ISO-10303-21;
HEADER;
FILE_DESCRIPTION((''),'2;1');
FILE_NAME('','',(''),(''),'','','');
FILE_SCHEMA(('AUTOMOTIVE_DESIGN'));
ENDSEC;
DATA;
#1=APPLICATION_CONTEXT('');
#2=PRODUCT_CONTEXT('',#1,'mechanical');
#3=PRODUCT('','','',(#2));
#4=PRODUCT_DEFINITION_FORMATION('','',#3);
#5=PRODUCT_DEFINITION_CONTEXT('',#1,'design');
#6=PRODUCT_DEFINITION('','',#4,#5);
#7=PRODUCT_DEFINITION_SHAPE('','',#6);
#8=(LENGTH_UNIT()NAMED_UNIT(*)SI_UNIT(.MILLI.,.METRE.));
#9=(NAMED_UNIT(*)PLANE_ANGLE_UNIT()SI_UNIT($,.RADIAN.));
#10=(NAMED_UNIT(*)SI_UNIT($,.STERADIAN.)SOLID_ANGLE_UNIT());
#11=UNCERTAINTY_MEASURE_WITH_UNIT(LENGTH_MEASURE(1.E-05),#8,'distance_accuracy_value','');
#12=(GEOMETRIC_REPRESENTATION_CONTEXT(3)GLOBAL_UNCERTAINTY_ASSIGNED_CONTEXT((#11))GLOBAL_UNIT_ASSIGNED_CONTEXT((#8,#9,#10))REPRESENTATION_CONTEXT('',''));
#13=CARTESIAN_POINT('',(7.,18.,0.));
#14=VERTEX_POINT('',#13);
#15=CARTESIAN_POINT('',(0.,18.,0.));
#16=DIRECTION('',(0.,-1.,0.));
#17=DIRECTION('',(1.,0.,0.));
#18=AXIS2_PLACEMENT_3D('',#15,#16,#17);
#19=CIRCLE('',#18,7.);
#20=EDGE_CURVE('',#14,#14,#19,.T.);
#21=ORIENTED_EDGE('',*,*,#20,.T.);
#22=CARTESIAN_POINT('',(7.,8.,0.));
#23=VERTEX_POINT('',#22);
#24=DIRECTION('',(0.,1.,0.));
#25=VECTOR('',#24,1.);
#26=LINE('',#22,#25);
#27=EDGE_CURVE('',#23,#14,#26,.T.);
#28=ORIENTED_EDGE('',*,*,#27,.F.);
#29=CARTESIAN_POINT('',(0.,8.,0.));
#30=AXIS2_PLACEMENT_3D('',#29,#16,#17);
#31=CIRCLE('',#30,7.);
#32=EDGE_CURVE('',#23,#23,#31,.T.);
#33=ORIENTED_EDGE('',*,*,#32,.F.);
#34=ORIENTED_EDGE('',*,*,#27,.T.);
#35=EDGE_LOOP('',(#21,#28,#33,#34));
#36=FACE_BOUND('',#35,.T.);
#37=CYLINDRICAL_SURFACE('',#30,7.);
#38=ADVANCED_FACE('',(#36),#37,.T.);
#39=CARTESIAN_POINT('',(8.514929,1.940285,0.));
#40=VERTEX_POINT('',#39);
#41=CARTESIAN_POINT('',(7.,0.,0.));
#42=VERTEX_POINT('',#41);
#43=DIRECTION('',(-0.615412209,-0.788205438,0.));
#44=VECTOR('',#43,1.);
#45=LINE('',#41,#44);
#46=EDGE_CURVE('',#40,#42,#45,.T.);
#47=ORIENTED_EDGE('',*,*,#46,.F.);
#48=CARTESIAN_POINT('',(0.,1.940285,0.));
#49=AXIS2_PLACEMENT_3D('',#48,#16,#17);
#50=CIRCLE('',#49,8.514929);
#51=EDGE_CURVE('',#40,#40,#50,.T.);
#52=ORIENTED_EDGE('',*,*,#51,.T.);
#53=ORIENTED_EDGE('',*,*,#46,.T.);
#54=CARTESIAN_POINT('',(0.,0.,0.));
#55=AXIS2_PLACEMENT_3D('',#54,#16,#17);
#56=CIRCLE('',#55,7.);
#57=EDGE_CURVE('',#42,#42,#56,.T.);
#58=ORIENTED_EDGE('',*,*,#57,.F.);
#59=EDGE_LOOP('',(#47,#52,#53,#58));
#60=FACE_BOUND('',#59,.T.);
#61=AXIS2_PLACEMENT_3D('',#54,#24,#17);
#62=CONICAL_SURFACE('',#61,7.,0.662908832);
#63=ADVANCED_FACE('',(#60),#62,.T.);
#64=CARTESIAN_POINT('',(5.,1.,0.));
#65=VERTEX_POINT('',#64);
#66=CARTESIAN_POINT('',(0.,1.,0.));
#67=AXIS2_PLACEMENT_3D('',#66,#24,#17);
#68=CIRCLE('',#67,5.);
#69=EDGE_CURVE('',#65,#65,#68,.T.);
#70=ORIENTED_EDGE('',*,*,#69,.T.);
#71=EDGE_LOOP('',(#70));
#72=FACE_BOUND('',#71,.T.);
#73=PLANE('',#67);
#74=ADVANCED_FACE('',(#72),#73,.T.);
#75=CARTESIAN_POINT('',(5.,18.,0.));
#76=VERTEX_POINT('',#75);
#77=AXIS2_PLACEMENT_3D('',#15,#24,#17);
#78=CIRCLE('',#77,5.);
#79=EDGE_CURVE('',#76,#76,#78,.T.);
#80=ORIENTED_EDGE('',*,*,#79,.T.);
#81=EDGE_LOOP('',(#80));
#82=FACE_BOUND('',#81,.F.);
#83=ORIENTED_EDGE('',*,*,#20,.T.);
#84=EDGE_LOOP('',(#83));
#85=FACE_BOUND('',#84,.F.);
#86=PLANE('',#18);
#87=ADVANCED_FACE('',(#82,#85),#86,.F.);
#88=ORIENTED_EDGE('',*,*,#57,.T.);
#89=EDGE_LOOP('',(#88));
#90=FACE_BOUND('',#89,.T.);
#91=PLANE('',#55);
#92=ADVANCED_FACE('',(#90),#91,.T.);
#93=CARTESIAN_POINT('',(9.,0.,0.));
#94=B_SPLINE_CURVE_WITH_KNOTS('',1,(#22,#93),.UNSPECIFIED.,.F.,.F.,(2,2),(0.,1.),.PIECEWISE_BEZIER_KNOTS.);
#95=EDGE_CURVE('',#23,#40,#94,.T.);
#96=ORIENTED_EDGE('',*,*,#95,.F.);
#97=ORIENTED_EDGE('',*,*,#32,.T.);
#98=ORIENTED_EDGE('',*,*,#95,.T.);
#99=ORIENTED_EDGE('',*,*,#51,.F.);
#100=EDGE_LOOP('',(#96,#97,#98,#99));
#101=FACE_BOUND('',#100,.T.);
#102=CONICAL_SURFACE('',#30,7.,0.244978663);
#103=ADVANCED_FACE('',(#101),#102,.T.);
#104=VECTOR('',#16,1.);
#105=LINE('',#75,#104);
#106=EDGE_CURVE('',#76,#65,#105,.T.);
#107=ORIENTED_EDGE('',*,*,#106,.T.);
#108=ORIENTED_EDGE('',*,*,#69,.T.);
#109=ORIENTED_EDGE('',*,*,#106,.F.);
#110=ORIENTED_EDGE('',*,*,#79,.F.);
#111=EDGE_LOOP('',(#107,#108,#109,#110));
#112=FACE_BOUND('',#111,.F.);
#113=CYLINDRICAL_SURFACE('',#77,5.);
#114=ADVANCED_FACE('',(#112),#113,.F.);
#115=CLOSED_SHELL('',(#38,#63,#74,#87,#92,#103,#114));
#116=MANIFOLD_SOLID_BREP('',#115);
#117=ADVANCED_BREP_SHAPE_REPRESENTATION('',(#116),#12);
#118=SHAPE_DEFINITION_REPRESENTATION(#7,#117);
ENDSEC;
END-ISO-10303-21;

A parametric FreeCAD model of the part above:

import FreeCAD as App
import Part
import Sketcher
Q = App.Units.Quantity


def edges_at(feature, points):
    """Names of the edges that pass closest to the given points."""
    edges = feature.Shape.Edges
    near = lambda p: min(range(len(edges)), key=lambda i: edges[i].distToShape(Part.Vertex(*p))[0])
    return sorted({f"Edge{near(p) + 1}" for p in points})

doc = App.newDocument("Part")
body = doc.addObject("PartDesign::Body", "Body")

# Sketch on XZ plane
sketch1 = body.newObject("Sketcher::SketchObject", "Sketch")
sketch1.AttachmentSupport = (doc.getObject("XZ_Plane"), [""])
sketch1.MapMode = "FlatFace"
sketch1.AttachmentOffset = App.Placement(App.Vector(0, 0, -8), App.Rotation())
sketch1.addGeometry(Part.Circle(App.Vector(0, 0, 0), App.Vector(0, 0, 1), 7), False)
sketch1.addConstraint(Sketcher.Constraint("Coincident", 0, 3, -1, 1))
sketch1.addConstraint(Sketcher.Constraint("Diameter", 0, Q("14 mm")))

# Sketch on XZ plane
sketch2 = body.newObject("Sketcher::SketchObject", "Sketch001")
sketch2.AttachmentSupport = (doc.getObject("XZ_Plane"), [""])
sketch2.MapMode = "FlatFace"
sketch2.addGeometry(Part.Circle(App.Vector(0, 0, 0), App.Vector(0, 0, 1), 9), False)
sketch2.addConstraint(Sketcher.Constraint("Coincident", 0, 3, -1, 1))
sketch2.addConstraint(Sketcher.Constraint("Diameter", 0, Q("18 mm")))

additiveloft = body.newObject("PartDesign::AdditiveLoft", "AdditiveLoft")
additiveloft.Profile = sketch1
additiveloft.Sections = [sketch2]

# Sketch on XZ plane
sketch3 = body.newObject("Sketcher::SketchObject", "Sketch002")
sketch3.AttachmentSupport = (doc.getObject("XZ_Plane"), [""])
sketch3.MapMode = "FlatFace"
sketch3.AttachmentOffset = App.Placement(App.Vector(0, 0, -8), App.Rotation())
sketch3.addGeometry(Part.Circle(App.Vector(0, 0, 0), App.Vector(0, 0, 1), 7), False)
sketch3.addConstraint(Sketcher.Constraint("Coincident", 0, 3, -1, 1))
sketch3.addConstraint(Sketcher.Constraint("Diameter", 0, Q("14 mm")))
pad1 = body.newObject("PartDesign::Pad", "Pad")
pad1.Profile = sketch3
pad1.Length = 10
pad1.Reversed = True

# Sketch on XZ plane
sketch4 = body.newObject("Sketcher::SketchObject", "Sketch003")
sketch4.AttachmentSupport = (doc.getObject("XZ_Plane"), [""])
sketch4.MapMode = "FlatFace"
sketch4.AttachmentOffset = App.Placement(App.Vector(0, 0, -18), App.Rotation())
sketch4.addGeometry(Part.Circle(App.Vector(0, 0, 0), App.Vector(0, 0, 1), 5), False)
sketch4.addConstraint(Sketcher.Constraint("Coincident", 0, 3, -1, 1))
sketch4.addConstraint(Sketcher.Constraint("Diameter", 0, Q("10 mm")))
pocket1 = body.newObject("PartDesign::Pocket", "Pocket")
pocket1.Profile = sketch4
pocket1.Length = 17
pocket1.Reversed = True
doc.recompute()

chamfer = body.newObject("PartDesign::Chamfer", "Chamfer")
chamfer.Base = (pocket1, edges_at(pocket1, [(-9, 0, 0)]))
chamfer.Size = 2

doc.recompute()
